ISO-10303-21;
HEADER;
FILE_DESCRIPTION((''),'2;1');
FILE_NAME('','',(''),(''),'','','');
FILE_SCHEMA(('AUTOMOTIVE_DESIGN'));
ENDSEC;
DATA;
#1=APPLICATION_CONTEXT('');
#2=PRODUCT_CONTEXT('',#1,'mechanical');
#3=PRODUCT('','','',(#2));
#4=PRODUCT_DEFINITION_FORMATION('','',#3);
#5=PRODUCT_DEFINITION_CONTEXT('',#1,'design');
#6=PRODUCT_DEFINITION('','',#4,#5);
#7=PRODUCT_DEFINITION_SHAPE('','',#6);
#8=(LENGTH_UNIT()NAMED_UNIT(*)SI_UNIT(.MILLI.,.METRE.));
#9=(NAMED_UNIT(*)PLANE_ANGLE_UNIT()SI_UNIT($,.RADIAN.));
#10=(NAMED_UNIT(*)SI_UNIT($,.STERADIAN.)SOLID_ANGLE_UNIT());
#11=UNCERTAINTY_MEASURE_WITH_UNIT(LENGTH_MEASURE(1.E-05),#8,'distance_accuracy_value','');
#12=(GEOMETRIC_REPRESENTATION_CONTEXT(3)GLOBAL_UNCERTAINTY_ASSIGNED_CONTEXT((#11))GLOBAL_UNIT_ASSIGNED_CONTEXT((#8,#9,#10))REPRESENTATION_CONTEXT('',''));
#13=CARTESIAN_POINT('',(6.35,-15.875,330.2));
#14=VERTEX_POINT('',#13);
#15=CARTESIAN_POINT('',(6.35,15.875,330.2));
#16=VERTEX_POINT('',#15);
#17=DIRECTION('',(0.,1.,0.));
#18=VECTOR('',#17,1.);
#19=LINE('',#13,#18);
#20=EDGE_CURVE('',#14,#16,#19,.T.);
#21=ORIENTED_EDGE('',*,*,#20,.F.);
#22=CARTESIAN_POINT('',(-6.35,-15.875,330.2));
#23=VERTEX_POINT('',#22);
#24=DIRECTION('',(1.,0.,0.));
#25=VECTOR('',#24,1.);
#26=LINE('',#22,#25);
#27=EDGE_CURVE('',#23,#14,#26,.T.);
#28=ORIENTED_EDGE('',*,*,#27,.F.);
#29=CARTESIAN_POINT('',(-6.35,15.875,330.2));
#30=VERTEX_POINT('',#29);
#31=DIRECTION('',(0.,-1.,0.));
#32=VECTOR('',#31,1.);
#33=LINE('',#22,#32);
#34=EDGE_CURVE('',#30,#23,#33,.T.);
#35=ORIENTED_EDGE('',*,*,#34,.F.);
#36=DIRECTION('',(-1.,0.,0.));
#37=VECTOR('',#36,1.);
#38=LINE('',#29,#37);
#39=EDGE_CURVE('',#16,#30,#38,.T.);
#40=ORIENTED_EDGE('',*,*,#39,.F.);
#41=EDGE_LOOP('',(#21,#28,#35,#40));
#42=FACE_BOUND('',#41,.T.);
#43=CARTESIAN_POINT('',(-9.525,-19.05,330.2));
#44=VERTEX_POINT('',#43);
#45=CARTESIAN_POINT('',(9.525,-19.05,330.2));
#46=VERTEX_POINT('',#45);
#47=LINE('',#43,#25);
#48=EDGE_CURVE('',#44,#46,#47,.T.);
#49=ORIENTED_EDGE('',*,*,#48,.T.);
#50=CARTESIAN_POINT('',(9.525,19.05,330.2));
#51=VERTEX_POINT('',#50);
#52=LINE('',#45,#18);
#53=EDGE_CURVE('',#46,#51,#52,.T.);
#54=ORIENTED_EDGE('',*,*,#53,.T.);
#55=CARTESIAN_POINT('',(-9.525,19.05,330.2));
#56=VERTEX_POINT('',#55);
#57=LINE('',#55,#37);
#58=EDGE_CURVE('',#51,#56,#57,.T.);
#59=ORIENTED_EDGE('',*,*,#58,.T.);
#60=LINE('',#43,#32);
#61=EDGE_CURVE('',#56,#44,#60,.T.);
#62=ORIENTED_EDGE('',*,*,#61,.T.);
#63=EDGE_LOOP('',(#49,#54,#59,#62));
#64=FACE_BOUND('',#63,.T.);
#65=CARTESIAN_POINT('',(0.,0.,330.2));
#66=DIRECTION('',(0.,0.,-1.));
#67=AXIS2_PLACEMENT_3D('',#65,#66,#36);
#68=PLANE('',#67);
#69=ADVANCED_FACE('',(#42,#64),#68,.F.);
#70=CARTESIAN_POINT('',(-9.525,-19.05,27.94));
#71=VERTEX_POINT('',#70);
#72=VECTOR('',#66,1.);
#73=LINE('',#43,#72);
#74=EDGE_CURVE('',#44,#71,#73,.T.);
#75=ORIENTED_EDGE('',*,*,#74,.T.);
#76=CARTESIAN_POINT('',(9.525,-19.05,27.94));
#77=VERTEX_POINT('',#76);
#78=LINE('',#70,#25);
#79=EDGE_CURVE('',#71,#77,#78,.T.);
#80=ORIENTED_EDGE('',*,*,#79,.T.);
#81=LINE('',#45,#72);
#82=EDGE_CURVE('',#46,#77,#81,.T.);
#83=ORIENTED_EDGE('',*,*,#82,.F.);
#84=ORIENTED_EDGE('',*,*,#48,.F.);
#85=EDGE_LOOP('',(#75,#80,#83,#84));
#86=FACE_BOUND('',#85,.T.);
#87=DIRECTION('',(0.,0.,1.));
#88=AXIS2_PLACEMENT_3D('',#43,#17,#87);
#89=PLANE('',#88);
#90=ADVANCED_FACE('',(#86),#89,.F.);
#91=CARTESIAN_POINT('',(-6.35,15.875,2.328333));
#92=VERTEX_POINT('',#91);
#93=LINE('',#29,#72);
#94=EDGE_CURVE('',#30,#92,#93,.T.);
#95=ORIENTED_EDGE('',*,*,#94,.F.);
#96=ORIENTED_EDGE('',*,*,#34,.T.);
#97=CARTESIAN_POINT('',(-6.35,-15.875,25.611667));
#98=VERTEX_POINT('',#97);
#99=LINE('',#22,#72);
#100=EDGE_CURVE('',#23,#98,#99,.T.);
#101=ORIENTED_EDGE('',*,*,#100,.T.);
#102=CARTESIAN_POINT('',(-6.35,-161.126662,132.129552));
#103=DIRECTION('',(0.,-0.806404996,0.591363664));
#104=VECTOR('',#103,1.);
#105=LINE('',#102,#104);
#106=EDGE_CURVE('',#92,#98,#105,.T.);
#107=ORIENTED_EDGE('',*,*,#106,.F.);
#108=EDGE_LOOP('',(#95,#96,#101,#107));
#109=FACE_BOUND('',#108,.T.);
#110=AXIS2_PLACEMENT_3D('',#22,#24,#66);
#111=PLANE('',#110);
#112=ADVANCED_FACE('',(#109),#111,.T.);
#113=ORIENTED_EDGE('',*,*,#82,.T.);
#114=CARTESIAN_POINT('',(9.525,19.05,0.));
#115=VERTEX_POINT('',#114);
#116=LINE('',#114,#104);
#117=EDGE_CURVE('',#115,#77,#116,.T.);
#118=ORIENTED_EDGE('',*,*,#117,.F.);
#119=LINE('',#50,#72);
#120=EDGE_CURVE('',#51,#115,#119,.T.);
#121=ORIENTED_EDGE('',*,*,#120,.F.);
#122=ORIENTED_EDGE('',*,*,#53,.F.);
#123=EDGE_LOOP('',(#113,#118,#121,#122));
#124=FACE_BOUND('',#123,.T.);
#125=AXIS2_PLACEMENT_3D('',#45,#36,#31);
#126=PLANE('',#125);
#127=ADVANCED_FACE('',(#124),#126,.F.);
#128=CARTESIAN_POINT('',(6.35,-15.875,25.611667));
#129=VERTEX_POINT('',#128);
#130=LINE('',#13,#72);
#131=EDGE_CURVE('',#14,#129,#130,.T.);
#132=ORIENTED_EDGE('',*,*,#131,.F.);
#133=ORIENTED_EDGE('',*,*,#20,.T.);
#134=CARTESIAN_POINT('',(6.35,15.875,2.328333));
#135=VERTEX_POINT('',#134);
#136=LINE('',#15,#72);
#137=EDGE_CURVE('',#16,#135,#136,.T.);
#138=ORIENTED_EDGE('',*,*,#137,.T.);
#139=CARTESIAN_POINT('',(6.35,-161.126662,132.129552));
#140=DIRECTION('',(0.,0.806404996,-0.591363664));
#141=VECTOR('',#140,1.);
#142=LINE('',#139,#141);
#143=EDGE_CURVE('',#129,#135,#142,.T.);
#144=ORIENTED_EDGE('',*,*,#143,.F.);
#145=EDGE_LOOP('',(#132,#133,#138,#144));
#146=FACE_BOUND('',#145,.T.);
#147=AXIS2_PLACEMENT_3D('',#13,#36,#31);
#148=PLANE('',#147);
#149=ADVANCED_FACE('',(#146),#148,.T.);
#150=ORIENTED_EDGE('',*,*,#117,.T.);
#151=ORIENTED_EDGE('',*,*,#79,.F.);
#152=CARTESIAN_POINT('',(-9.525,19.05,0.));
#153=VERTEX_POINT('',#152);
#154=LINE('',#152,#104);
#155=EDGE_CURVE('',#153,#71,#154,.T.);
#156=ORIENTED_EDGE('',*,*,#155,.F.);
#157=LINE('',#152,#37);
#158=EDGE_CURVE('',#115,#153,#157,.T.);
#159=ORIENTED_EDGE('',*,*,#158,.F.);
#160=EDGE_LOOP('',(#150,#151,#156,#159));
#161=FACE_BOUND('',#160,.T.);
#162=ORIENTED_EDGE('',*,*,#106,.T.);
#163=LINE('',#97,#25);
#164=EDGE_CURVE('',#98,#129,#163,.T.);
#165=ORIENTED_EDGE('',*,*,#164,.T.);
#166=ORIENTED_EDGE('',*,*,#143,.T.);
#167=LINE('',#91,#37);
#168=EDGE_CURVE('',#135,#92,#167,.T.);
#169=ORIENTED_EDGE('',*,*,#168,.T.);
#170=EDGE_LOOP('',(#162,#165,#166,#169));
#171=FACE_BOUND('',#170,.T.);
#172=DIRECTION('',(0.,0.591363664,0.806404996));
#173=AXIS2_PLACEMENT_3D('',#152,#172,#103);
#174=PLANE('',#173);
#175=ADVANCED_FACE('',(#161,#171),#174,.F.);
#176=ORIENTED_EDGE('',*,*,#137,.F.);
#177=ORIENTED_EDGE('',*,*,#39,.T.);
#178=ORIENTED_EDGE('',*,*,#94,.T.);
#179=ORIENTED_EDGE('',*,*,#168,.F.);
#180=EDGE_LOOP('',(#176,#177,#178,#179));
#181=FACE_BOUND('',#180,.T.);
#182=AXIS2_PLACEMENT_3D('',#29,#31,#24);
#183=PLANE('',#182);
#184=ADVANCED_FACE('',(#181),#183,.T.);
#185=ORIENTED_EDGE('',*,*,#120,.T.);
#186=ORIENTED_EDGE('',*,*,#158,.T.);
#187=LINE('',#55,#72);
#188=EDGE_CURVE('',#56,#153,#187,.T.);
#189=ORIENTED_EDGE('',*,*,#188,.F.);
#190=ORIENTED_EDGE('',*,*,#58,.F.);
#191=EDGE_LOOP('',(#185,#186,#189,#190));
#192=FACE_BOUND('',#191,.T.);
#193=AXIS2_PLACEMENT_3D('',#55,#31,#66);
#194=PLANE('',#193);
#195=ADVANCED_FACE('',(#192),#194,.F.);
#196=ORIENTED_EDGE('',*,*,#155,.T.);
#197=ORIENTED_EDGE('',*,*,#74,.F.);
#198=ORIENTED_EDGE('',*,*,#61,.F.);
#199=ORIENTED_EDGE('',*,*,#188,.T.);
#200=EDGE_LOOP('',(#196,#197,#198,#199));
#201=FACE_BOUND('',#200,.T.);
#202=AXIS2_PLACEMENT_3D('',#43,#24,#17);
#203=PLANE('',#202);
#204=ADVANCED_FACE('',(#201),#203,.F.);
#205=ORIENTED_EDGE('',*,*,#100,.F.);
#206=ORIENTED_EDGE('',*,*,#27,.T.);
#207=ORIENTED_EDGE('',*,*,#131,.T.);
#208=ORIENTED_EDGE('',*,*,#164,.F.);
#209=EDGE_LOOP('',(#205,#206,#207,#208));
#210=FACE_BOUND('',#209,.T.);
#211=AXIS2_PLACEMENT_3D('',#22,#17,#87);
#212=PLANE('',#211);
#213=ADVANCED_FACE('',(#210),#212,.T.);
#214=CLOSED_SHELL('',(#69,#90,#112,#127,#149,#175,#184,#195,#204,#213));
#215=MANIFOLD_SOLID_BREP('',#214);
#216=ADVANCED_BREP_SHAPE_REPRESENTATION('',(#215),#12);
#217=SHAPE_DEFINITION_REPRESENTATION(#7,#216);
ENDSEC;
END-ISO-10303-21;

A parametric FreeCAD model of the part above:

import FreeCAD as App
import Part
import Sketcher
from FreeCAD import Vector
Q = App.Units.Quantity


def add_polygon(sketch, points):
    """Adds a closed chain of lines whose ends are joined by coincident constraints."""
    first, n = sketch.GeometryCount, len(points)
    for a, b in zip(points, points[1:] + points[:1]):
        sketch.addGeometry(Part.LineSegment(App.Vector(*a, 0), App.Vector(*b, 0)), False)
    for i in range(n):
        sketch.addConstraint(Sketcher.Constraint("Coincident", first + i, 2, first + (i + 1) % n, 1))

doc = App.newDocument("Part")
body = doc.addObject("PartDesign::Body", "Body")

sketch1 = body.newObject("Sketcher::SketchObject", "Sketch")
sketch1.AttachmentSupport = (doc.getObject("XY_Plane"), [""])
sketch1.MapMode = "FlatFace"
add_polygon(sketch1, [(-10, 19), (-10, -19), (10, -19), (10, 19)])
add_polygon(sketch1, [(6, -16), (-6, -16), (-6, 16), (6, 16)])
sketch1.addConstraint([
    Sketcher.Constraint("Vertical", 0),
    Sketcher.Constraint("Horizontal", 1),
    Sketcher.Constraint("Vertical", 2),
    Sketcher.Constraint("Horizontal", 3),
    Sketcher.Constraint("Horizontal", 4),
    Sketcher.Constraint("Vertical", 5),
    Sketcher.Constraint("Horizontal", 6),
    Sketcher.Constraint("Vertical", 7),
    Sketcher.Constraint("Symmetric", 0, 2, 2, 2, -1, 1),
    Sketcher.Constraint("Symmetric", 4, 2, 6, 2, -1, 1),
    Sketcher.Constraint("DistanceX", 4, 2, 4, 1, Q("0.5 in")),
    Sketcher.Constraint("DistanceY", 0, 2, 0, 1, Q("1.5 in")),
    Sketcher.Constraint("DistanceX", 1, 1, 1, 2, Q("0.75 in")),
    Sketcher.Constraint("DistanceY", 5, 1, 5, 2, Q("1.25 in")),
])
pad1 = body.newObject("PartDesign::Pad", "Pad")
pad1.Profile = sketch1
pad1.Length = Q("13 in")

sketch2 = body.newObject("Sketcher::SketchObject", "Sketch001")
sketch2.AttachmentSupport = (doc.getObject("YZ_Plane"), [""])
sketch2.MapMode = "FlatFace"
sketch2.AttachmentOffset = App.Placement(Vector(0, 0, 0.375 * 25.4), App.Rotation())
add_polygon(sketch2, [(19, 0), (-19, 28), (-19, 0)])
sketch2.addConstraint([
    Sketcher.Constraint("Vertical", 1),
    Sketcher.Constraint("Horizontal", 2),
    Sketcher.Constraint("Symmetric", 1, 2, 2, 2, -1, 1),
    Sketcher.Constraint("DistanceX", 2, 1, 2, 2, Q("1.5 in")),
    Sketcher.Constraint("DistanceY", 1, 2, 1, 1, Q("1.1 in")),
])
pocket1 = body.newObject("PartDesign::Pocket", "Pocket")
pocket1.Profile = sketch2
pocket1.Type = "ThroughAll"

doc.recompute()
